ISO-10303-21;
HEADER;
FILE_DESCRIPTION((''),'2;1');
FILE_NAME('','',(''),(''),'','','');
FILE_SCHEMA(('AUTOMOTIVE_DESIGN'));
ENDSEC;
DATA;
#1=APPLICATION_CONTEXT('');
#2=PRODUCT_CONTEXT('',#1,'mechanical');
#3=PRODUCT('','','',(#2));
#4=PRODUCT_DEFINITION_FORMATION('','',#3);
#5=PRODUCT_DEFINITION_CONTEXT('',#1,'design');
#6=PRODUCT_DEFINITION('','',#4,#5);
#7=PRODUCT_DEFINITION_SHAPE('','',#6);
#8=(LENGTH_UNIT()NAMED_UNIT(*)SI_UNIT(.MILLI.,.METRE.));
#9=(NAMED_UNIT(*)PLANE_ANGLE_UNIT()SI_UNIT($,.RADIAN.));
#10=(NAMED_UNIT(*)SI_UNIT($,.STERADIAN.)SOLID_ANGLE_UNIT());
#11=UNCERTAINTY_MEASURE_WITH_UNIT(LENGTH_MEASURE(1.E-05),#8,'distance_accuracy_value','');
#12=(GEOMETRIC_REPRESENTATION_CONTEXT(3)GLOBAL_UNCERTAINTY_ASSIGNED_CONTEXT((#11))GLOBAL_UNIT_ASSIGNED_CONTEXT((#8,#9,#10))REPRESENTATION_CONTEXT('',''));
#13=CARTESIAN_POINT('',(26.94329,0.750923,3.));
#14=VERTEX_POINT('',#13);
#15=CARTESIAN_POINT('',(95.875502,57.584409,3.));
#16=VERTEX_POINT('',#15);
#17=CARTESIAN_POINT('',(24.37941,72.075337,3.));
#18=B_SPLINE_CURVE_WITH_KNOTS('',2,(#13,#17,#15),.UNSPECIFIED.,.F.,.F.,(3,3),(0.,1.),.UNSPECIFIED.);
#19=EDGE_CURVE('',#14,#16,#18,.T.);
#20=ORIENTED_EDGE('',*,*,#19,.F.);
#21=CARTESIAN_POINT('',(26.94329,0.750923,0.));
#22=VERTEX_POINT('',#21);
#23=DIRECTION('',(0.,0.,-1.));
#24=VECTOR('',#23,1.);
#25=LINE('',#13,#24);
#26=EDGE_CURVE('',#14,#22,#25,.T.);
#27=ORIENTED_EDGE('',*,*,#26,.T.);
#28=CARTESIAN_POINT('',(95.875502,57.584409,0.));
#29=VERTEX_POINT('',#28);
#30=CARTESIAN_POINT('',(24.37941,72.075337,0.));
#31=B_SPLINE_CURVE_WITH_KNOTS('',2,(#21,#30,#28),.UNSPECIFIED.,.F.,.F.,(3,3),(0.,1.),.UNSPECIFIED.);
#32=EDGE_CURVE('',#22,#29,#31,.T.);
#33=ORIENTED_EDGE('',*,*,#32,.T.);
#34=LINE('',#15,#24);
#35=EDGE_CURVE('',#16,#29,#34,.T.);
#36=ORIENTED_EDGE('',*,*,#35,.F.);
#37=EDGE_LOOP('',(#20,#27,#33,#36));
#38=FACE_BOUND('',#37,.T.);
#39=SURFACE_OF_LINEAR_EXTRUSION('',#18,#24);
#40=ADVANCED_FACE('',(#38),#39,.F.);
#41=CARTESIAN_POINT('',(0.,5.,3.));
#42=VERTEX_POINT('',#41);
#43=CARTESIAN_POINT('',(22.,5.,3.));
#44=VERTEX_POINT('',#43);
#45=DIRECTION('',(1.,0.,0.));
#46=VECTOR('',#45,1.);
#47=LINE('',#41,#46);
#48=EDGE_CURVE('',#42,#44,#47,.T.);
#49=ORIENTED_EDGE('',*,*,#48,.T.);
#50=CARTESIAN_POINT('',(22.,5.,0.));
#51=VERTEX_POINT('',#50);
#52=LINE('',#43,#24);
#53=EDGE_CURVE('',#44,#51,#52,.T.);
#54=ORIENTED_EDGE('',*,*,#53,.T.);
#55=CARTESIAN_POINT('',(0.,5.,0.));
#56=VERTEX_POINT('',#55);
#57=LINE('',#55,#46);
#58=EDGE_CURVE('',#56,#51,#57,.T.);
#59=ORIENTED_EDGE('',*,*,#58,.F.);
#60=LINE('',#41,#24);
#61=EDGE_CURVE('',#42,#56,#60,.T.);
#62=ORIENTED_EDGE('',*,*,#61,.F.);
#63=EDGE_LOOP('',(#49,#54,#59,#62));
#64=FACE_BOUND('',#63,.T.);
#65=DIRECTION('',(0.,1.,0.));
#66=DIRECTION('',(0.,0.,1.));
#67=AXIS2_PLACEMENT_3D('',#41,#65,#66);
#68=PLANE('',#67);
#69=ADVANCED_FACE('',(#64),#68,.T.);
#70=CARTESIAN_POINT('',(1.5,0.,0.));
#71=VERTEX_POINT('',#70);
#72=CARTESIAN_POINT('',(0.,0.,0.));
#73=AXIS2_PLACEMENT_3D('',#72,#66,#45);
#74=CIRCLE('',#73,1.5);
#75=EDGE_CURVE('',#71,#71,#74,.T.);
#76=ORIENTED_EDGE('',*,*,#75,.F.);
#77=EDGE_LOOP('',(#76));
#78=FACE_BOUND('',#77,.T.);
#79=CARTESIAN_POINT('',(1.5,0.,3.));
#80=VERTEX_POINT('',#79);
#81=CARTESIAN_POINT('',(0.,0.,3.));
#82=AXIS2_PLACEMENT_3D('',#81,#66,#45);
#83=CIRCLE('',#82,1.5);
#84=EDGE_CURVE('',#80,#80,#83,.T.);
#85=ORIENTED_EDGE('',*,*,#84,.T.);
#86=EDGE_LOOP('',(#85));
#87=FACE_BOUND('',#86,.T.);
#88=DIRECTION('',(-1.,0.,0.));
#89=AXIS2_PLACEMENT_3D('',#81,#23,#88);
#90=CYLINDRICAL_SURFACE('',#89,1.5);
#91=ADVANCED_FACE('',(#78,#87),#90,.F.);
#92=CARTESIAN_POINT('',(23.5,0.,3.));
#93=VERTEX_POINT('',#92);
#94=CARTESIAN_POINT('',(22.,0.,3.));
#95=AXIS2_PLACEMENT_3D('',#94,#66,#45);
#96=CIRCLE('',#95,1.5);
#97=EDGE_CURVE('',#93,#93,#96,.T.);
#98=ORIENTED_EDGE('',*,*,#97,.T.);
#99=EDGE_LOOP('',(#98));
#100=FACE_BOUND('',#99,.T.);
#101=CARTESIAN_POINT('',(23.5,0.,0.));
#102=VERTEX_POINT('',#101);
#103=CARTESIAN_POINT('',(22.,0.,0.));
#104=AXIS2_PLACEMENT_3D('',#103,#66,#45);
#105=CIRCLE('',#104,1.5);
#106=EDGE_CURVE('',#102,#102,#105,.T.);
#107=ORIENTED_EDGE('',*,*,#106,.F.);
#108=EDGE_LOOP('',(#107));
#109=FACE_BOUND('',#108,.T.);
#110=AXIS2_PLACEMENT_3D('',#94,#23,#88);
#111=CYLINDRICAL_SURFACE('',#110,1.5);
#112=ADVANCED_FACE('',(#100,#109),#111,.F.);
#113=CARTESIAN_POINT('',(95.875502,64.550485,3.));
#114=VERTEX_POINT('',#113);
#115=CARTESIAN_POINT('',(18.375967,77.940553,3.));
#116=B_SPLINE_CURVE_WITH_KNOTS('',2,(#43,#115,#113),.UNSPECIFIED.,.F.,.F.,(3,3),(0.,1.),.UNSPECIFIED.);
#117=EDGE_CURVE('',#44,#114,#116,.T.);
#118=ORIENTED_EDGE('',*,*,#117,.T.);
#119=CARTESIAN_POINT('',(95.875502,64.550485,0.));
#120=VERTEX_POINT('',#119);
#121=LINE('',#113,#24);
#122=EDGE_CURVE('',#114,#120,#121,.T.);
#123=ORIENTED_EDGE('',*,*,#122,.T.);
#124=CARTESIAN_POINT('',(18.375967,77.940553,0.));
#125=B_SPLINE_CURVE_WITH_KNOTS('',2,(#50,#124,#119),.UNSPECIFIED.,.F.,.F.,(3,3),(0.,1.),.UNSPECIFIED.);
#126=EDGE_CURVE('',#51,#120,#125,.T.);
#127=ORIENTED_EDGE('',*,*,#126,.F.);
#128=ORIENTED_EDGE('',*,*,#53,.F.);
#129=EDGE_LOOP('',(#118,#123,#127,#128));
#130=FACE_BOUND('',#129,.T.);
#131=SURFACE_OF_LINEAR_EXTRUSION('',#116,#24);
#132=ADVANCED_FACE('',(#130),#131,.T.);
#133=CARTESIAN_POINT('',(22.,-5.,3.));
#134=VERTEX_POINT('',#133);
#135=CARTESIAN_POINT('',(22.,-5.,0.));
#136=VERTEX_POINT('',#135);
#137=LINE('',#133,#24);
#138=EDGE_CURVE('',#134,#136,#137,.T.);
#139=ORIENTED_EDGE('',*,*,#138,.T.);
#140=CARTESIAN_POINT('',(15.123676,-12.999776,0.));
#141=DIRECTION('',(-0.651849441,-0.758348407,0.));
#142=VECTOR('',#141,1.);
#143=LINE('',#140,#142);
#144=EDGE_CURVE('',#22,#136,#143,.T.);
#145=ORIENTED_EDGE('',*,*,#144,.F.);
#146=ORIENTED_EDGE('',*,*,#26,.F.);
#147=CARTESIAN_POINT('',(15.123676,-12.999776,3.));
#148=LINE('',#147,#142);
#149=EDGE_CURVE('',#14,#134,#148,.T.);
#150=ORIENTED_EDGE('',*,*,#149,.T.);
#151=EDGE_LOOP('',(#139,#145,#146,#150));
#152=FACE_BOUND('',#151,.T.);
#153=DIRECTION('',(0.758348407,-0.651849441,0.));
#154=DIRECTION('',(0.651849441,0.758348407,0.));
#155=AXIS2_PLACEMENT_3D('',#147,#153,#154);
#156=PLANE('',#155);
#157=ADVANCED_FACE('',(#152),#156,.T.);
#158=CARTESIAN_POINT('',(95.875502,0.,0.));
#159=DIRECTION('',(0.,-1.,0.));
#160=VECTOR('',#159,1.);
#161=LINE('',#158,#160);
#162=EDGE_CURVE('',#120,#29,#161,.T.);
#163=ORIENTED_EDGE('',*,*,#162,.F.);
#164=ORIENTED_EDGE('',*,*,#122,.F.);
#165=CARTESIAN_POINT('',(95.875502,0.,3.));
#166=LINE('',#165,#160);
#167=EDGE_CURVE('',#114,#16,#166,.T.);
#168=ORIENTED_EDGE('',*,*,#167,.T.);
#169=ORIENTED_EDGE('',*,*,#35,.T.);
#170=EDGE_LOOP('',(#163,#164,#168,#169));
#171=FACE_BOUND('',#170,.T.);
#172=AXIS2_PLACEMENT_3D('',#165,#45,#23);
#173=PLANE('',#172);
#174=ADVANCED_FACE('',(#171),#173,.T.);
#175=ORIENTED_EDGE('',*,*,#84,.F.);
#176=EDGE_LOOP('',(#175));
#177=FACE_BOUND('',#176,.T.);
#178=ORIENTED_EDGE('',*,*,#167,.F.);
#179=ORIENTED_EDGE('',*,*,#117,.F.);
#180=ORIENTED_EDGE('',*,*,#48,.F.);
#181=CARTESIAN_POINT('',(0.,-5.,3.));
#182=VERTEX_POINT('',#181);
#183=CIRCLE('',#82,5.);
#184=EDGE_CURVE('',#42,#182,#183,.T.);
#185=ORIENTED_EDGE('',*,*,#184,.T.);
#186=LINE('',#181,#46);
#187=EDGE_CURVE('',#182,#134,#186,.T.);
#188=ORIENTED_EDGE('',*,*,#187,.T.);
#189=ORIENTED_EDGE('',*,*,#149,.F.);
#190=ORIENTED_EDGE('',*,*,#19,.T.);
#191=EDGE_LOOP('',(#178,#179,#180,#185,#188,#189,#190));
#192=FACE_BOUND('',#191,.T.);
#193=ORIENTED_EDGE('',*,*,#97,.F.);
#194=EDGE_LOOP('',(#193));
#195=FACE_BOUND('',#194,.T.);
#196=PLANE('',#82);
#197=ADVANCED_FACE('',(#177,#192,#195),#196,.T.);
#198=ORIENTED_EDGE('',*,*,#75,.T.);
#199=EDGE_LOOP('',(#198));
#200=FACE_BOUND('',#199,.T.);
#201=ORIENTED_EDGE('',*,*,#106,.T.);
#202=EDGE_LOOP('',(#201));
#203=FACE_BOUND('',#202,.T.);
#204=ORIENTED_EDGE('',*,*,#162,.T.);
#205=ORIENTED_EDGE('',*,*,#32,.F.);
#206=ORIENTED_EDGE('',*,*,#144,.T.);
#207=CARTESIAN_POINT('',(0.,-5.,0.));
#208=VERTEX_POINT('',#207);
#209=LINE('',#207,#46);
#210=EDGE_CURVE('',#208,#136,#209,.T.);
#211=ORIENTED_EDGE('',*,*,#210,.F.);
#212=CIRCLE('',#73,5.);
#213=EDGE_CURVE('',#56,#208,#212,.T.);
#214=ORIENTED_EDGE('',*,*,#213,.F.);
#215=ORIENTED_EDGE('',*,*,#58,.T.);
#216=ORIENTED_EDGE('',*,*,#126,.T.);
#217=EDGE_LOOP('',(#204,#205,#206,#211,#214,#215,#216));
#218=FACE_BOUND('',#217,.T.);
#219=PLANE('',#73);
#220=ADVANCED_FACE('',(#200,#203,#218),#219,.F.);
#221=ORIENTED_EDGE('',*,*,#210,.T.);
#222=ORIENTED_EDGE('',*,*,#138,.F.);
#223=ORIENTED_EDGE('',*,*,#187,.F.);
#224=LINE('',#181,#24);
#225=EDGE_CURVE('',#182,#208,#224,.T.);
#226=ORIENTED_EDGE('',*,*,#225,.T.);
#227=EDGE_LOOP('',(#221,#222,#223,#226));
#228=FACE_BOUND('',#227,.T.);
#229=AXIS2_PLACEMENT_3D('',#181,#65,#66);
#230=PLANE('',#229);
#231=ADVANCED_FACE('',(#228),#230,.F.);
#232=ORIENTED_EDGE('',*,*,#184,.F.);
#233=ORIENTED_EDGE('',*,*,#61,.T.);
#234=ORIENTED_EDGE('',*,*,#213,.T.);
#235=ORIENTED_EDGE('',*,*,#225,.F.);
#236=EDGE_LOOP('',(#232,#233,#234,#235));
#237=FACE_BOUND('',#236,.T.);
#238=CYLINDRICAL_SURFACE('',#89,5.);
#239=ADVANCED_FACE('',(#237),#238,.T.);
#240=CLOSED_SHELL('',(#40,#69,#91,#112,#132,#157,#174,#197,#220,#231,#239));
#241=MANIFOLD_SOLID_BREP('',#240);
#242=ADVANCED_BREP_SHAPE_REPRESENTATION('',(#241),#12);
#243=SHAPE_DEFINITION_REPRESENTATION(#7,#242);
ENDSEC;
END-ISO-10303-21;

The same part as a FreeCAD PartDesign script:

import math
import FreeCAD as App
import Part
import Sketcher
from FreeCAD import Vector

doc = App.newDocument("Part")
body = doc.addObject("PartDesign::Body", "Body")

sketch1 = body.newObject("Sketcher::SketchObject", "Sketch")
sketch1.AttachmentSupport = (doc.getObject("XY_Plane"), [""])
sketch1.MapMode = "FlatFace"
sketch1.addGeometry([
    Part.LineSegment(Vector(22, 5, 0), Vector(0, 5, 0)),
    Part.ArcOfCircle(Part.Circle(Vector(0, 0, 0), Vector(0, 0, 1), 5), math.radians(90), math.radians(270)),
    Part.LineSegment(Vector(0, -5, 0), Vector(22, -5, 0)),
    Part.LineSegment(Vector(22, -5, 0), Vector(26.94329, 0.750923, 0)),
    Part.BSplineCurve([Vector(26.94329, 0.750923, 0), Vector(24.37941, 72.075337, 0), Vector(95.875502, 57.584409, 0)], [3, 3], [0, 1], False, 2, [1, 1, 1], False),
    Part.LineSegment(Vector(95.875502, 57.584409, 0), Vector(95.875502, 64.550485, 0)),
    Part.BSplineCurve([Vector(22, 5, 0), Vector(18.375967, 77.940553, 0), Vector(95.875502, 64.550485, 0)], [3, 3], [0, 1], False, 2, [1, 1, 1], False),
    Part.Circle(Vector(22, 0, 0), Vector(0, 0, 1), 1.5),
    Part.Circle(Vector(0, 0, 0), Vector(0, 0, 1), 1.5),
], False)
sketch1.addConstraint([
    Sketcher.Constraint("Block", 4),
    Sketcher.Constraint("Block", 6),
    Sketcher.Constraint("Tangent", 0, 2, 1, 1),
    Sketcher.Constraint("Tangent", 1, 2, 2, 1),
    Sketcher.Constraint("Coincident", 2, 2, 3, 1),
    Sketcher.Constraint("Coincident", 3, 2, 4, 1),
    Sketcher.Constraint("Coincident", 4, 2, 5, 1),
    Sketcher.Constraint("Coincident", 5, 2, 6, 2),
    Sketcher.Constraint("Coincident", 6, 1, 0, 1),
    Sketcher.Constraint("Horizontal", 0),
    Sketcher.Constraint("Horizontal", 2),
    Sketcher.Constraint("Coincident", 1, 3, -1, 1),
    Sketcher.Constraint("Coincident", 8, 3, -1, 1),
    Sketcher.Constraint("Equal", 7, 8),
    Sketcher.Constraint("PointOnObject", 7, 3, -1),
    Sketcher.Constraint("Vertical", 7, 3, 2, 2),
    Sketcher.Constraint("Equal", 0, 2),
    Sketcher.Constraint("Diameter", 7, 3.0),
])
pad1 = body.newObject("PartDesign::Pad", "Pad")
pad1.Profile = sketch1
pad1.Length = 3

doc.recompute()
